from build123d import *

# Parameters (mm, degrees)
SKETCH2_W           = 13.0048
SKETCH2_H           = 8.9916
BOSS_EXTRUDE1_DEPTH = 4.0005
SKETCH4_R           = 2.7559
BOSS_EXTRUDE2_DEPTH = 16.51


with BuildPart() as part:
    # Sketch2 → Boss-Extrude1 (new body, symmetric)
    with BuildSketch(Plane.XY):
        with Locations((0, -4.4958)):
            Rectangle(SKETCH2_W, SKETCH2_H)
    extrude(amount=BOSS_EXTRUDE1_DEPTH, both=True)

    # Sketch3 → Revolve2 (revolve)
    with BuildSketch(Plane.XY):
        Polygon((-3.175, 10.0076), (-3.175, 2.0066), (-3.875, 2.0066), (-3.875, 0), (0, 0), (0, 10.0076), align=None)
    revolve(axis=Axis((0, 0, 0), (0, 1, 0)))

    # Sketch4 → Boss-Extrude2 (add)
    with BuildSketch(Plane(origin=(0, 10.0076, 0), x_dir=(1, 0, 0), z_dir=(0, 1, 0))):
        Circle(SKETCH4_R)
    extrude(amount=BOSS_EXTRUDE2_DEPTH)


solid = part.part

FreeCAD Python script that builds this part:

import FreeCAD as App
import Part
import Sketcher
Q = App.Units.Quantity

doc = App.newDocument("Part")
body = doc.addObject("PartDesign::Body", "Body")

# Sketch on XY plane
sketch1 = doc.addObject("Sketcher::SketchObject", "Sketch")
body.addObject(sketch1)
sketch1.AttachmentSupport = (doc.XY_Plane, [""])
sketch1.MapMode = "FlatFace"
sketch1.addGeometry(Part.LineSegment(App.Vector(-7, 0, 0), App.Vector(-7, -9, 0)), False)
sketch1.addGeometry(Part.LineSegment(App.Vector(-7, -9, 0), App.Vector(7, -9, 0)), False)
sketch1.addGeometry(Part.LineSegment(App.Vector(7, -9, 0), App.Vector(7, 0, 0)), False)
sketch1.addGeometry(Part.LineSegment(App.Vector(7, 0, 0), App.Vector(-7, 0, 0)), False)
sketch1.addConstraint(Sketcher.Constraint("Coincident", 0, 2, 1, 1))
sketch1.addConstraint(Sketcher.Constraint("Coincident", 1, 2, 2, 1))
sketch1.addConstraint(Sketcher.Constraint("Coincident", 2, 2, 3, 1))
sketch1.addConstraint(Sketcher.Constraint("Coincident", 3, 2, 0, 1))
sketch1.addConstraint(Sketcher.Constraint("Vertical", 0))
sketch1.addConstraint(Sketcher.Constraint("Horizontal", 1))
sketch1.addConstraint(Sketcher.Constraint("Vertical", 2))
sketch1.addConstraint(Sketcher.Constraint("Horizontal", 3))
sketch1.addConstraint(Sketcher.Constraint("Symmetric", 2, 2, 3, 2, -1, 1))
sketch1.addConstraint(Sketcher.Constraint("DistanceX", 1, 1, 1, 2, Q("0.512 in")))
sketch1.addConstraint(Sketcher.Constraint("DistanceY", 0, 2, 0, 1, Q("0.354 in")))
pad1 = doc.addObject("PartDesign::Pad", "Pad")
body.addObject(pad1)
pad1.Profile = sketch1
pad1.Length = Q("0.315 in")
pad1.Midplane = True

# Sketch on XY plane
sketch2 = doc.addObject("Sketcher::SketchObject", "Sketch001")
body.addObject(sketch2)
sketch2.AttachmentSupport = (doc.XY_Plane, [""])
sketch2.MapMode = "FlatFace"
sketch2.addGeometry(Part.LineSegment(App.Vector(-3.2, 10, 0), App.Vector(-3.2, 2, 0)), False)
sketch2.addGeometry(Part.LineSegment(App.Vector(-3.2, 2, 0), App.Vector(-3.9, 2, 0)), False)
sketch2.addGeometry(Part.LineSegment(App.Vector(-3.9, 2, 0), App.Vector(-3.9, 0, 0)), False)
sketch2.addGeometry(Part.LineSegment(App.Vector(-3.9, 0, 0), App.Vector(0, 0, 0)), False)
sketch2.addGeometry(Part.LineSegment(App.Vector(0, 0, 0), App.Vector(0, 10, 0)), False)
sketch2.addGeometry(Part.LineSegment(App.Vector(0, 10, 0), App.Vector(-3.2, 10, 0)), False)
sketch2.addConstraint(Sketcher.Constraint("Coincident", 0, 2, 1, 1))
sketch2.addConstraint(Sketcher.Constraint("Coincident", 1, 2, 2, 1))
sketch2.addConstraint(Sketcher.Constraint("Coincident", 2, 2, 3, 1))
sketch2.addConstraint(Sketcher.Constraint("Coincident", 3, 2, 4, 1))
sketch2.addConstraint(Sketcher.Constraint("Coincident", 4, 2, 5, 1))
sketch2.addConstraint(Sketcher.Constraint("Coincident", 5, 2, 0, 1))
sketch2.addConstraint(Sketcher.Constraint("Vertical", 0))
sketch2.addConstraint(Sketcher.Constraint("Horizontal", 1))
sketch2.addConstraint(Sketcher.Constraint("Vertical", 2))
sketch2.addConstraint(Sketcher.Constraint("Horizontal", 3))
sketch2.addConstraint(Sketcher.Constraint("Vertical", 4))
sketch2.addConstraint(Sketcher.Constraint("Horizontal", 5))
sketch2.addConstraint(Sketcher.Constraint("Coincident", 3, 2, -1, 1))
sketch2.addConstraint(Sketcher.Constraint("DistanceX", 5, 2, 5, 1, Q("0.125 in")))
sketch2.addConstraint(Sketcher.Constraint("DistanceY", 0, 2, 0, 1, Q("0.315 in")))
sketch2.addConstraint(Sketcher.Constraint("DistanceY", 2, 2, 2, 1, Q("0.079 in")))
sketch2.addConstraint(Sketcher.Constraint("DistanceX", 1, 2, 1, 1, 0.7))
revolution = doc.addObject("PartDesign::Revolution", "Revolution")
body.addObject(revolution)
revolution.Profile = sketch2
revolution.ReferenceAxis = (sketch2, ["V_Axis"])
revolution.Angle = 360

# Sketch on XZ plane
sketch3 = doc.addObject("Sketcher::SketchObject", "Sketch002")
body.addObject(sketch3)
sketch3.AttachmentSupport = (doc.XZ_Plane, [""])
sketch3.MapMode = "FlatFace"
sketch3.AttachmentOffset = App.Placement(App.Vector(0, 0, -0.394 * 25.4), App.Rotation())
sketch3.addGeometry(Part.Circle(App.Vector(0, 0, 0), App.Vector(0, 0, 1), 2.8), False)
sketch3.addConstraint(Sketcher.Constraint("Coincident", 0, 3, -1, 1))
sketch3.addConstraint(Sketcher.Constraint("Diameter", 0, Q("0.217 in")))
pad2 = doc.addObject("PartDesign::Pad", "Pad001")
body.addObject(pad2)
pad2.Profile = sketch3
pad2.Length = Q("0.65 in")
pad2.Reversed = True

doc.recompute()
